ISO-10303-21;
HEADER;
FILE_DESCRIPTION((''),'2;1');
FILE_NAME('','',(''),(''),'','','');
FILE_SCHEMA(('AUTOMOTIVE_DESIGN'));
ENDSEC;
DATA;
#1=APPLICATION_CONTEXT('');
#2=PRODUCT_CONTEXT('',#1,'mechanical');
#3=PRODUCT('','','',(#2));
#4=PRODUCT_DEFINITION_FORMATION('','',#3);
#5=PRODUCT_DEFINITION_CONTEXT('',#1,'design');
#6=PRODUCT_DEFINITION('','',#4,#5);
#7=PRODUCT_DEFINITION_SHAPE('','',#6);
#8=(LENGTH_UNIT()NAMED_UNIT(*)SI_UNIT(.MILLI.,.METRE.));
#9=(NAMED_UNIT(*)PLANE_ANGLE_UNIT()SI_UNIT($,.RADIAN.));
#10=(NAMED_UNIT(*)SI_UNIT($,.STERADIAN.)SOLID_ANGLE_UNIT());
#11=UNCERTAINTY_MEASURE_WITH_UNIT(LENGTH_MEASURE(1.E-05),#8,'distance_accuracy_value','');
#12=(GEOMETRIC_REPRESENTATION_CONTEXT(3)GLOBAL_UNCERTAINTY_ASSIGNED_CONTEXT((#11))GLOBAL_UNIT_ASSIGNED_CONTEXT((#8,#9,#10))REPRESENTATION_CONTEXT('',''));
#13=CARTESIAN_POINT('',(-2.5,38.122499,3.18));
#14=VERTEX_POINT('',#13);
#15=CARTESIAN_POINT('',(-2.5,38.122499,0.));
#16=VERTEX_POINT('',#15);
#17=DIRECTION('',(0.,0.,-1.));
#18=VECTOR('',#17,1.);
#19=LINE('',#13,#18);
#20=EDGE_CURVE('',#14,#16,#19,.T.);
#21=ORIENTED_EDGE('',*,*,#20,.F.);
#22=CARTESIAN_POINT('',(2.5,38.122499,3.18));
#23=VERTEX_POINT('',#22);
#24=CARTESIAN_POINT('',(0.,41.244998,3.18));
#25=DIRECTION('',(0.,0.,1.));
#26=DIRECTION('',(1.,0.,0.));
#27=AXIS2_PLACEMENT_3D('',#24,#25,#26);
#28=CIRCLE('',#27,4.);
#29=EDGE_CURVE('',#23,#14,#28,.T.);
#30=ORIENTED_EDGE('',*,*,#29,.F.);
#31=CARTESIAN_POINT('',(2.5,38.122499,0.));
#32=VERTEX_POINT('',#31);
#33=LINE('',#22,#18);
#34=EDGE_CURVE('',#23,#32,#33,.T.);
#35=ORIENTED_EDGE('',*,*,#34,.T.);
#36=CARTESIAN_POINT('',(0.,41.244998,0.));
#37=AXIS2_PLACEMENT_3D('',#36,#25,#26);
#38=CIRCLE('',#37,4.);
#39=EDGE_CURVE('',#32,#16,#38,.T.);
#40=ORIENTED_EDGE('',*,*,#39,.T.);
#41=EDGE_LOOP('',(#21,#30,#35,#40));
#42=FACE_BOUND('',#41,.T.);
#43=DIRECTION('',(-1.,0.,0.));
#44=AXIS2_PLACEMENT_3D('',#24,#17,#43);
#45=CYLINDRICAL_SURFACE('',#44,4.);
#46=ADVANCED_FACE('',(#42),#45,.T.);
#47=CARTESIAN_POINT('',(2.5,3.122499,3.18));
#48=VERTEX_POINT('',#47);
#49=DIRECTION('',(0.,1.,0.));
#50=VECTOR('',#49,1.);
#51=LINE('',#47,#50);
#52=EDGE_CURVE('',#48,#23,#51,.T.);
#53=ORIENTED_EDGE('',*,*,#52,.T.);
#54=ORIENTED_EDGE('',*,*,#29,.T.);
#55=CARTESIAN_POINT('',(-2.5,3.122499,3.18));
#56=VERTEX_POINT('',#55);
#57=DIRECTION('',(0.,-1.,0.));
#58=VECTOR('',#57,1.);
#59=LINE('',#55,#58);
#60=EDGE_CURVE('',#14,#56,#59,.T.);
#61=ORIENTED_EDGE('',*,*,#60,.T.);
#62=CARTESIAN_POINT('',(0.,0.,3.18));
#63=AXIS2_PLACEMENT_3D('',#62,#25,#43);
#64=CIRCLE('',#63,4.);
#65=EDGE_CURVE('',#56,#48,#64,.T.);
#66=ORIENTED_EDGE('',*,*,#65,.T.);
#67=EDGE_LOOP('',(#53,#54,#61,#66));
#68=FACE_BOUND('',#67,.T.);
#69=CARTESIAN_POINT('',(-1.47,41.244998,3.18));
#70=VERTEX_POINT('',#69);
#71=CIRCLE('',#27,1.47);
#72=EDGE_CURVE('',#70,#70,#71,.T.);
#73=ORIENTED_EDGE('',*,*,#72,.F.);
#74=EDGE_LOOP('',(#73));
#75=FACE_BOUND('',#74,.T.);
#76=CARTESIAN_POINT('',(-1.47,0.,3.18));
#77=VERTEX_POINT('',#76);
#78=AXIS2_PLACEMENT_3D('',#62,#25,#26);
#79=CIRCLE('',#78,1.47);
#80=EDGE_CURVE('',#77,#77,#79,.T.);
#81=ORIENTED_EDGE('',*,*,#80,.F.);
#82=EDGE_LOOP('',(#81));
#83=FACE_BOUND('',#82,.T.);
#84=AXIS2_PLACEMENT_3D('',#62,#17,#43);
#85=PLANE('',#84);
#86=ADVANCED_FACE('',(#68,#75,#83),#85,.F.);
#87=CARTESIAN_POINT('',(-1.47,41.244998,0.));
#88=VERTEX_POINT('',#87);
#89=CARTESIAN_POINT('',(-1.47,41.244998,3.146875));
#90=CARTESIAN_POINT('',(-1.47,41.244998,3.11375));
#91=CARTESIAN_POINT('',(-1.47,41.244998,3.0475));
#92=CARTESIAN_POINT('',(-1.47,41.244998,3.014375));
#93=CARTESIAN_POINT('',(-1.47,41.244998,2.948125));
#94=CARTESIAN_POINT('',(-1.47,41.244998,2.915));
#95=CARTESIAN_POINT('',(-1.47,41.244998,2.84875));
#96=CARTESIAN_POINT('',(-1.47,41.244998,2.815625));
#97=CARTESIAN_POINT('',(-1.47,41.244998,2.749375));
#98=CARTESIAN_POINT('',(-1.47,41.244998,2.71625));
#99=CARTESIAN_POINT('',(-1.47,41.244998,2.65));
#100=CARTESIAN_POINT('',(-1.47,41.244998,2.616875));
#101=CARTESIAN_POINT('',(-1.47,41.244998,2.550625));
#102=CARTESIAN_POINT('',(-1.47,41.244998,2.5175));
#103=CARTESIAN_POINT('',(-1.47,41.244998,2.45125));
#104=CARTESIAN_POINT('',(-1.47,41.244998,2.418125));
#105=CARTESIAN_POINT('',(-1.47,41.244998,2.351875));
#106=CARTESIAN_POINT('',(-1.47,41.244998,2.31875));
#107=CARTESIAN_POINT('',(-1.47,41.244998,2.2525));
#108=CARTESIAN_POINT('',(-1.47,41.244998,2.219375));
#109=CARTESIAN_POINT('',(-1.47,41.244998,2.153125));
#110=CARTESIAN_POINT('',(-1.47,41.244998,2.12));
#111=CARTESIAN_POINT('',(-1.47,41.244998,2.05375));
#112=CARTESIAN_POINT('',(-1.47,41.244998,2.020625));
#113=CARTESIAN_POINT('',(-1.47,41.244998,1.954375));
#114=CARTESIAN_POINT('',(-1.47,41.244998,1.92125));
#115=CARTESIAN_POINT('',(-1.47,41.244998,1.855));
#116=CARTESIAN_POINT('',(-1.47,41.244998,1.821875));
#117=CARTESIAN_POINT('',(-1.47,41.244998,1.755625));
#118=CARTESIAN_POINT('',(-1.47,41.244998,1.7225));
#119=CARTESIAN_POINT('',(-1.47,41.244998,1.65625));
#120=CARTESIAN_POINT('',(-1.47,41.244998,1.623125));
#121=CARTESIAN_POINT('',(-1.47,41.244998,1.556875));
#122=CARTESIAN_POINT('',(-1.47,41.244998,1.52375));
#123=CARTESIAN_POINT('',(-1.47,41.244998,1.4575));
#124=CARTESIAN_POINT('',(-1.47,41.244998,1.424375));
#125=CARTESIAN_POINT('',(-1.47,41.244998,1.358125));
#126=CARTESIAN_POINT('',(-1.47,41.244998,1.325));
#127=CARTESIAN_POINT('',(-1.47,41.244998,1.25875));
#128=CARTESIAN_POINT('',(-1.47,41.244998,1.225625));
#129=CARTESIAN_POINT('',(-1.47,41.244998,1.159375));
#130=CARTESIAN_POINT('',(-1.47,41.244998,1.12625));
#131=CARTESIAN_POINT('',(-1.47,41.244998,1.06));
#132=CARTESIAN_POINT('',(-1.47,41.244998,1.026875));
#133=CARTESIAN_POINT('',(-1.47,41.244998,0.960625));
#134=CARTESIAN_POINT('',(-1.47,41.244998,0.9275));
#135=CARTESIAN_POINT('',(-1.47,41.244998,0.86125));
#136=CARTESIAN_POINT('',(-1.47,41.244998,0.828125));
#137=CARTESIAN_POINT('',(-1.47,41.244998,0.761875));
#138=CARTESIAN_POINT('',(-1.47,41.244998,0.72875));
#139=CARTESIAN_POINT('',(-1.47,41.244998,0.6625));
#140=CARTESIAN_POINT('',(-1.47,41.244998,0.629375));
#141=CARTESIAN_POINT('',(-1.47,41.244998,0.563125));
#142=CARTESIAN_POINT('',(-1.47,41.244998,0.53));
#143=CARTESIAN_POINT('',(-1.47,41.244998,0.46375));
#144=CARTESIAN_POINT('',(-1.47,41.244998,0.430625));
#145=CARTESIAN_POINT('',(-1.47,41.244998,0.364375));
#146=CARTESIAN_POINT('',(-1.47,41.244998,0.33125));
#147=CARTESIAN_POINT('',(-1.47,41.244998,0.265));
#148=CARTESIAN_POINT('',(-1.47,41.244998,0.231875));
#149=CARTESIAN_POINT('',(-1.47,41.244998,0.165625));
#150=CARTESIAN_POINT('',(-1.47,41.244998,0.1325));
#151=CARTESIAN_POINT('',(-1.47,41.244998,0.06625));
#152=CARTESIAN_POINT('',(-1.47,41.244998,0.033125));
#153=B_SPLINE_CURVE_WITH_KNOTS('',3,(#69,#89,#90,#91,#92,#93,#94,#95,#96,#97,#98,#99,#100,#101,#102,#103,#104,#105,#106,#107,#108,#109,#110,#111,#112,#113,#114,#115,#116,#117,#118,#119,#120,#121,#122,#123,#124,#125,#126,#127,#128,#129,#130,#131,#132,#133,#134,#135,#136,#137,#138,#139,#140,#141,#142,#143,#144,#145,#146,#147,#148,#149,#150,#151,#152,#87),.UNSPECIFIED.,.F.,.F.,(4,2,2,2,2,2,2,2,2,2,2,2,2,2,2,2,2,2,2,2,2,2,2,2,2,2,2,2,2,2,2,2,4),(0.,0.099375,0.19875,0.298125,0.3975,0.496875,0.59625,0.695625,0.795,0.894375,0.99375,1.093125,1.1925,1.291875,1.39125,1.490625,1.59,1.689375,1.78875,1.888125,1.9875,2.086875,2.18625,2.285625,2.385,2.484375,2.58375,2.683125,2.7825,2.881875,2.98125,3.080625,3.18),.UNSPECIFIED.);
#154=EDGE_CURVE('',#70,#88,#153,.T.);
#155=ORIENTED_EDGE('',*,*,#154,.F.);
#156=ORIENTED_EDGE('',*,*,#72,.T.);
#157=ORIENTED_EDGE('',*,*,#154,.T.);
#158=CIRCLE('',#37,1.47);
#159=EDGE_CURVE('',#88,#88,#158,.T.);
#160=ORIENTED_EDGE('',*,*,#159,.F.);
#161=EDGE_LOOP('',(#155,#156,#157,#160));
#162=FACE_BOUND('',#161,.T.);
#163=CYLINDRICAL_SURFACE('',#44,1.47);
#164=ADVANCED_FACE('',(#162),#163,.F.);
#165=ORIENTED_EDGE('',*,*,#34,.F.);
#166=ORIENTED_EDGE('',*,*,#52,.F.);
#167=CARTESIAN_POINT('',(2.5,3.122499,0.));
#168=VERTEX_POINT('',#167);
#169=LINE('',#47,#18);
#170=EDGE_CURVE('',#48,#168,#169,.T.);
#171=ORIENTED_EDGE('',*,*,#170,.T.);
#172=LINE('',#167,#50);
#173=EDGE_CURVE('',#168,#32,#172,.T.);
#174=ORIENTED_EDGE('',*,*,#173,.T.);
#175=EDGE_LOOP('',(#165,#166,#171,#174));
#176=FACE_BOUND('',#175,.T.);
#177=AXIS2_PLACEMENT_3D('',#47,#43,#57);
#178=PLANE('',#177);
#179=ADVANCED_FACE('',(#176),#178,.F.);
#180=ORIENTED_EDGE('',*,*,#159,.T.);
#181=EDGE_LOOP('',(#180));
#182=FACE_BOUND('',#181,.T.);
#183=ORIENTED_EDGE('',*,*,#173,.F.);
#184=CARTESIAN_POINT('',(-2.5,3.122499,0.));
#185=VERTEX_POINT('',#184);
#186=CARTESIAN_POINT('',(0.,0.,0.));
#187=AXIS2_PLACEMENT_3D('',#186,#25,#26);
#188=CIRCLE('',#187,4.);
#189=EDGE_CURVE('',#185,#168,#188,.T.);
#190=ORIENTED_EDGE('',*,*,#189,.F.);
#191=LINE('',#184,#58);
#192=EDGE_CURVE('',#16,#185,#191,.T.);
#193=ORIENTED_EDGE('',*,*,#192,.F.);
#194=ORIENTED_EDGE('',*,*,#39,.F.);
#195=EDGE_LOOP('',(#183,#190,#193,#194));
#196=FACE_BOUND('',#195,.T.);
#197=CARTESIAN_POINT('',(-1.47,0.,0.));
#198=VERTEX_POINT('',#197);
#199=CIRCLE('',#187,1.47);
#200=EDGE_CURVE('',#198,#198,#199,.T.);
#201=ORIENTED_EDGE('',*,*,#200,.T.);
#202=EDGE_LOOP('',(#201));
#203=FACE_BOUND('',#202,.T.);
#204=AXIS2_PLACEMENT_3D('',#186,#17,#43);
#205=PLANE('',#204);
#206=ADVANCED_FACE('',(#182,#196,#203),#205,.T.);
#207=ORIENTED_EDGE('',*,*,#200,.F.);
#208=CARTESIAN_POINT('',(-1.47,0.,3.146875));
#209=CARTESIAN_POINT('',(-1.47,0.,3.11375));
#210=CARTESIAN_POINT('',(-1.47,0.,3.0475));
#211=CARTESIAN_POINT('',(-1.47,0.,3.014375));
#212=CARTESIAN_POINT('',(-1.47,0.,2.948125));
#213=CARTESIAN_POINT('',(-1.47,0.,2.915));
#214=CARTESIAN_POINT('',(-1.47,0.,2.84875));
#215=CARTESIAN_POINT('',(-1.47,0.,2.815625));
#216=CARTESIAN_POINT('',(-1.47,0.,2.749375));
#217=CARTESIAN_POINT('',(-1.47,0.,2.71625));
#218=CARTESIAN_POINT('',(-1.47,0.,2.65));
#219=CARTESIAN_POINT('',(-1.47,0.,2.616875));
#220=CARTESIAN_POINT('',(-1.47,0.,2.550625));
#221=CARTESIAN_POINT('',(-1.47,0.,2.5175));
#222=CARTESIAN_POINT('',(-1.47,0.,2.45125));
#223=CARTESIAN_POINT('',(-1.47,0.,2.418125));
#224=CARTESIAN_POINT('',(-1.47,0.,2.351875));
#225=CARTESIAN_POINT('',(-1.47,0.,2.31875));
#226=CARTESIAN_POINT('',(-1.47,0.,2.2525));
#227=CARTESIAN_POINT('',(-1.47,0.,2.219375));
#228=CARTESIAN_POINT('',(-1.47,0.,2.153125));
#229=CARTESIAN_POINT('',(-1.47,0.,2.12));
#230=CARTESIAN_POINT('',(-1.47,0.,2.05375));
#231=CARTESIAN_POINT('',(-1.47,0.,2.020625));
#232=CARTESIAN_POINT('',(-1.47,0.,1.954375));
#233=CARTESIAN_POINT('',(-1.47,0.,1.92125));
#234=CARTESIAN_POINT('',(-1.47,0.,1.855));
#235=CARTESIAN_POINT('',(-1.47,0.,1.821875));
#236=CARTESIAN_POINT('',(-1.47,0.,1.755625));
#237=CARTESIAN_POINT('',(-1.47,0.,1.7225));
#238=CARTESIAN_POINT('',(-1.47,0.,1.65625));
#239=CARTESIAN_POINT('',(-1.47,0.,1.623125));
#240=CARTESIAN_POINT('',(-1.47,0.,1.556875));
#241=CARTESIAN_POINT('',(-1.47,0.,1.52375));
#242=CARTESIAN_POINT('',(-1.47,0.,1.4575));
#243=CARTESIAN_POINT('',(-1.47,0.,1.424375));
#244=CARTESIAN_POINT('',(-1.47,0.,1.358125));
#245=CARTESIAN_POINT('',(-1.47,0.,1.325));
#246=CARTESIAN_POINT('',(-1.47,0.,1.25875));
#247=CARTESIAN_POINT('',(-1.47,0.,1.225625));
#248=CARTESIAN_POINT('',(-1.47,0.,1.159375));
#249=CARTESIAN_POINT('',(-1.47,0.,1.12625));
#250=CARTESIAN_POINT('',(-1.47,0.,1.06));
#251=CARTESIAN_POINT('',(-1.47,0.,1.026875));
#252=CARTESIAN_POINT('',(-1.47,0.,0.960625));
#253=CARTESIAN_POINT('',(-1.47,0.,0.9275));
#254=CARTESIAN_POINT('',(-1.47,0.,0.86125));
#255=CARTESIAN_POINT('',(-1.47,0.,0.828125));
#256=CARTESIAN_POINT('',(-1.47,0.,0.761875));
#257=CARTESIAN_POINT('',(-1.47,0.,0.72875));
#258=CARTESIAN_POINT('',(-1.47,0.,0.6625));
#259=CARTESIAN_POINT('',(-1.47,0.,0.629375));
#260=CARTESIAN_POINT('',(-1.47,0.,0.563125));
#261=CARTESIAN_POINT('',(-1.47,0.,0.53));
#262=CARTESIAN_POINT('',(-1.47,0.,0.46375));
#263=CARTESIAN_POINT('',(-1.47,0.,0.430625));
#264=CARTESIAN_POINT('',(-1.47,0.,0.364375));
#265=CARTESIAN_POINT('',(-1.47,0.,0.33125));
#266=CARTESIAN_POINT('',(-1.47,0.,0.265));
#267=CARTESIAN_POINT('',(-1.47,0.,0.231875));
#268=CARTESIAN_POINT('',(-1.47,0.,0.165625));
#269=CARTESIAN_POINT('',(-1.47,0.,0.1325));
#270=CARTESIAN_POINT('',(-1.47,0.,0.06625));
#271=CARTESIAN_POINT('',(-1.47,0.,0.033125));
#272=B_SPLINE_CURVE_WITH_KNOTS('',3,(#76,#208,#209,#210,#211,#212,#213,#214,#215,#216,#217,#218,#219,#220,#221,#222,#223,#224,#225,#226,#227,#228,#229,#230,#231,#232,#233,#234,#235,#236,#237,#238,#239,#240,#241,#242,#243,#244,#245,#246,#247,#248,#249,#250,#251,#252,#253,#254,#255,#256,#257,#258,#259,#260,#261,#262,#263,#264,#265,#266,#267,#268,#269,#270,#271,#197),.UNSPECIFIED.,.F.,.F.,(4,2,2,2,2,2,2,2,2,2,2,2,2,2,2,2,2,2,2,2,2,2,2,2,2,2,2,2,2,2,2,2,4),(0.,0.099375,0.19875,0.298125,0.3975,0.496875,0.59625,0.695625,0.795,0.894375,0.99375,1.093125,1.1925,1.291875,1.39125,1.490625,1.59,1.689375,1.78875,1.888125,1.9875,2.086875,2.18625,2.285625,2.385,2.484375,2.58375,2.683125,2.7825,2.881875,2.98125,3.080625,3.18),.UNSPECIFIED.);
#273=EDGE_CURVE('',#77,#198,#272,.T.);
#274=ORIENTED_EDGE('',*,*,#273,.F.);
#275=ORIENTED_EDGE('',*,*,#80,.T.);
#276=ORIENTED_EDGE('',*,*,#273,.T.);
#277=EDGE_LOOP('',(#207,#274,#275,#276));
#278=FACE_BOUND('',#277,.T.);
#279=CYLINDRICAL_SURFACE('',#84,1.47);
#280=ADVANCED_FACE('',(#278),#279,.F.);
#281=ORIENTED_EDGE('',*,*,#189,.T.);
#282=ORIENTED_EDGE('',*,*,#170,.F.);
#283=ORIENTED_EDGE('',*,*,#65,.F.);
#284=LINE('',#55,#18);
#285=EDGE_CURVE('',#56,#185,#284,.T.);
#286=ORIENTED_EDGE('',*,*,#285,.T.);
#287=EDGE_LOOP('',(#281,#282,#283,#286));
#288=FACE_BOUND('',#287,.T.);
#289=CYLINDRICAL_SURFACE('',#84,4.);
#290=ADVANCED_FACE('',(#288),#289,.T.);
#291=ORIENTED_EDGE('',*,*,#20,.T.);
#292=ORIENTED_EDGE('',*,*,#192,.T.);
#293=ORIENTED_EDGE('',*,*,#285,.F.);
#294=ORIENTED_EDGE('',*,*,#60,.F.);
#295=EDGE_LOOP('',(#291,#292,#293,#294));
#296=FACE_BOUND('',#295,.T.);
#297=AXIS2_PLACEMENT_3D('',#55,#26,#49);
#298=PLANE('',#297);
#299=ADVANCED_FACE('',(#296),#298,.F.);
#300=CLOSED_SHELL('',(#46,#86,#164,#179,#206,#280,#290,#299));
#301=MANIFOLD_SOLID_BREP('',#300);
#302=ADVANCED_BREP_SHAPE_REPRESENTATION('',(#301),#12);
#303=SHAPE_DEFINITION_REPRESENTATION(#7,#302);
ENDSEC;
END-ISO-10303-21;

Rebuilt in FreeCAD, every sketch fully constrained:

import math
import FreeCAD as App
import Part
import Sketcher

doc = App.newDocument("Part")
body = doc.addObject("PartDesign::Body", "Body")

sketch1 = body.newObject("Sketcher::SketchObject", "Sketch")
sketch1.AttachmentSupport = (doc.getObject("XY_Plane"), [""])
sketch1.MapMode = "FlatFace"
sketch1.addGeometry([
    Part.LineSegment(App.Vector(-2.5, 38.122499, 0), App.Vector(-2.5, 3.122499, 0)),
    Part.ArcOfCircle(Part.Circle(App.Vector(0, 0, 0), App.Vector(0, 0, 1), 4), math.radians(128.682187), math.radians(309.830246)),
    Part.ArcOfCircle(Part.Circle(App.Vector(0, 0, 0), App.Vector(0, 0, 1), 4), math.radians(-50.169754), math.radians(27.19462)),
    Part.ArcOfCircle(Part.Circle(App.Vector(0, 0, 0), App.Vector(0, 0, 1), 4), math.radians(27.19462), math.radians(51.317812)),
    Part.LineSegment(App.Vector(2.5, 3.122499, 0), App.Vector(2.5, 38.122499, 0)),
    Part.ArcOfCircle(Part.Circle(App.Vector(0, 41.244998, 0), App.Vector(0, 0, 1), 4), math.radians(-51.317813), math.radians(231.317813)),
    Part.Circle(App.Vector(0, 0, 0), App.Vector(0, 0, 1), 1.47),
    Part.Circle(App.Vector(0, 41.244998, 0), App.Vector(0, 0, 1), 1.47),
], False)
sketch1.addConstraint([
    Sketcher.Constraint("Coincident", 0, 2, 1, 1),
    Sketcher.Constraint("Tangent", 1, 2, 2, 1),
    Sketcher.Constraint("Tangent", 2, 2, 3, 1),
    Sketcher.Constraint("Coincident", 3, 2, 4, 1),
    Sketcher.Constraint("Coincident", 4, 2, 5, 1),
    Sketcher.Constraint("Coincident", 5, 2, 0, 1),
    Sketcher.Constraint("Vertical", 0),
    Sketcher.Constraint("Vertical", 4),
    Sketcher.Constraint("Coincident", 1, 3, -1, 1),
    Sketcher.Constraint("Coincident", 3, 3, -1, 1),
    Sketcher.Constraint("Coincident", 6, 3, -1, 1),
    Sketcher.Constraint("Coincident", 7, 3, 5, 3),
    Sketcher.Constraint("Equal", 3, 5),
    Sketcher.Constraint("Equal", 6, 7),
    Sketcher.Constraint("Symmetric", 4, 2, 5, 2, -2),
    Sketcher.Constraint("Radius", 1, 4.0),
    Sketcher.Constraint("Diameter", 6, 2.94),
    Sketcher.Constraint("DistanceY", 0, 2, 0, 1, 35.0),
    Sketcher.Constraint("DistanceX", 0, 2, 4, 2, 5.0),
    Sketcher.Constraint("DistanceX", -1, 1, 1, 2, 2.562061),
    Sketcher.Constraint("DistanceY", 1, 2, 2, 2, 4.89984),
])
pad1 = body.newObject("PartDesign::Pad", "Pad")
pad1.Profile = sketch1
pad1.Length = 3.18

doc.recompute()
